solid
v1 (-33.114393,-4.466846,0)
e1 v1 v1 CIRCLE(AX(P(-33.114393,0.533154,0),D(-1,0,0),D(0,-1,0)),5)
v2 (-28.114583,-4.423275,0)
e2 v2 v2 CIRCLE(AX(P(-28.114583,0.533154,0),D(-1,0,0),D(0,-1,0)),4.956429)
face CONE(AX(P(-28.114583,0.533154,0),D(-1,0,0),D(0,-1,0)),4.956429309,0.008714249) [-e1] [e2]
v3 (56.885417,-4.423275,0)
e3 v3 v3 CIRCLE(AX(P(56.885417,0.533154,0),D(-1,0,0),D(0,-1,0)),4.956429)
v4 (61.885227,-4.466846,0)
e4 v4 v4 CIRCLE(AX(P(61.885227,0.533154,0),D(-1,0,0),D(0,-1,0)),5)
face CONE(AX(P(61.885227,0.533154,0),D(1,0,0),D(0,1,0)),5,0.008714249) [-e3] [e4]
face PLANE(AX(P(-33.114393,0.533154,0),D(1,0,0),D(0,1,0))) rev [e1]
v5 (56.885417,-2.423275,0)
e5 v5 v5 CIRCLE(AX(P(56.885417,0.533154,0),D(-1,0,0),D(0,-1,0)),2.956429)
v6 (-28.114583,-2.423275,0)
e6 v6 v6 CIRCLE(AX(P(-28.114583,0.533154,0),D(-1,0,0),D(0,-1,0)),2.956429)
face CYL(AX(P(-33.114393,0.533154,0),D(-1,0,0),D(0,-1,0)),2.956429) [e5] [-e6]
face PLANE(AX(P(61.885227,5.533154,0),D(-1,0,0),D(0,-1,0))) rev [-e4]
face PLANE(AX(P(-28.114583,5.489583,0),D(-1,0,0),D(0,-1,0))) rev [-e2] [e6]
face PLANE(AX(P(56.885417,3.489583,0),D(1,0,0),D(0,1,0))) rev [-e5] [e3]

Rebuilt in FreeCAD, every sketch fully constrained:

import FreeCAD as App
import Part
import Sketcher
Q = App.Units.Quantity


def add_polygon(sketch, points):
    """Adds a closed chain of lines whose ends are joined by coincident constraints."""
    first, n = sketch.GeometryCount, len(points)
    for a, b in zip(points, points[1:] + points[:1]):
        sketch.addGeometry(Part.LineSegment(App.Vector(*a, 0), App.Vector(*b, 0)), False)
    for i in range(n):
        sketch.addConstraint(Sketcher.Constraint("Coincident", first + i, 2, first + (i + 1) % n, 1))

doc = App.newDocument("Part")
body = doc.addObject("PartDesign::Body", "Body")

# Sketch on XY plane
sketch1 = body.newObject("Sketcher::SketchObject", "Sketch")
sketch1.AttachmentSupport = (doc.getObject("XY_Plane"), [""])
sketch1.MapMode = "FlatFace"
add_polygon(sketch1, [(-33.114393, 5.533154), (-33.114393, 0.533154), (61.885227, 0.533154), (61.885227, 5.533154), (56.885417, 5.489583), (56.885417, 3.489583), (-28.114583, 3.489583), (-28.114583, 5.489583)])  # lines 0-7
sketch1.addGeometry(Part.LineSegment(App.Vector(-33.114393, 0.533154, 0), App.Vector(61.885227, 0.533154, 0)), True)  # axis
sketch1.addConstraint(Sketcher.Constraint("Vertical", 0))
sketch1.addConstraint(Sketcher.Constraint("Horizontal", 1))
sketch1.addConstraint(Sketcher.Constraint("Vertical", 2))
sketch1.addConstraint(Sketcher.Constraint("Vertical", 4))
sketch1.addConstraint(Sketcher.Constraint("Horizontal", 5))
sketch1.addConstraint(Sketcher.Constraint("Vertical", 6))
sketch1.addConstraint(Sketcher.Constraint("Horizontal", 8))
sketch1.addConstraint(Sketcher.Constraint("Coincident", 8, 1, 0, 2))
sketch1.addConstraint(Sketcher.Constraint("Horizontal", 3, 2, 6, 2))
sketch1.addConstraint(Sketcher.Constraint("Horizontal", 2, 2, 7, 2))
sketch1.addConstraint(Sketcher.Constraint("Vertical", 2, 2, 8, 2))
sketch1.addConstraint(Sketcher.Constraint("Equal", 3, 7))
sketch1.addConstraint(Sketcher.Constraint("DistanceX", 5, 2, 5, 1, Q("85 mm")))
sketch1.addConstraint(Sketcher.Constraint("DistanceY", 0, 2, 0, 1, Q("5 mm")))
sketch1.addConstraint(Sketcher.Constraint("DistanceY", 4, 2, 4, 1, Q("2 mm")))
sketch1.addConstraint(Sketcher.Constraint("Distance", 3, Q("5 mm")))
sketch1.addConstraint(Sketcher.Constraint("DistanceX", 1, 1, 1, 2, Q("94.99962 mm")))
sketch1.addConstraint(Sketcher.Constraint("DistanceX", 0, 2, -1, 1, Q("33.114393 mm")))
sketch1.addConstraint(Sketcher.Constraint("DistanceY", -1, 1, 0, 2, Q("0.533154 mm")))
revolution = body.newObject("PartDesign::Revolution", "Revolution")
revolution.Profile = sketch1
revolution.ReferenceAxis = (sketch1, ["Axis0"])
revolution.Angle = 360

doc.recompute()
